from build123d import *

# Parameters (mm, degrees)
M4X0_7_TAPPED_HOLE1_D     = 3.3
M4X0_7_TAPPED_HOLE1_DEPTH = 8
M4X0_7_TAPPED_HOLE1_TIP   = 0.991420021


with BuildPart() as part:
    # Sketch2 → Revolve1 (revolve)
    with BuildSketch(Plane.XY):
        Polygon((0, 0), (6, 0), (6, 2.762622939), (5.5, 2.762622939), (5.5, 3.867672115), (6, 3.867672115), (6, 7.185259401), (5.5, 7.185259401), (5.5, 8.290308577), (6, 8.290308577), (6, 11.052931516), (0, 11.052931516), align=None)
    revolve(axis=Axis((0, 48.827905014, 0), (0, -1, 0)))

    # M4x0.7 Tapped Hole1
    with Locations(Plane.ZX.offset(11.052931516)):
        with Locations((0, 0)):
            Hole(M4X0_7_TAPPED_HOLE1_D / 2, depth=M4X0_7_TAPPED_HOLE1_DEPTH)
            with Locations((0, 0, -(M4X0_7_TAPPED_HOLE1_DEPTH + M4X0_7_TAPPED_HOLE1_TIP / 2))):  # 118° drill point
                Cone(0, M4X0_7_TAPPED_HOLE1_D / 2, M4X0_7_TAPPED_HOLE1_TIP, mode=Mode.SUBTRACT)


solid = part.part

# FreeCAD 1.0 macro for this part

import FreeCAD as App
import Part
import Sketcher
Q = App.Units.Quantity

doc = App.newDocument("Part")
body = doc.addObject("PartDesign::Body", "Body")

sketch1 = body.newObject("Sketcher::SketchObject", "Sketch")
sketch1.AttachmentSupport = (doc.getObject("XY_Plane"), [""])
sketch1.MapMode = "FlatFace"
sketch1.addGeometry(Part.LineSegment(App.Vector(0, 0, 0), App.Vector(6, 0, 0)), False)
sketch1.addGeometry(Part.LineSegment(App.Vector(6, 0, 0), App.Vector(6, 2.8, 0)), False)
sketch1.addGeometry(Part.LineSegment(App.Vector(6, 2.8, 0), App.Vector(5.5, 2.8, 0)), False)
sketch1.addGeometry(Part.LineSegment(App.Vector(5.5, 2.8, 0), App.Vector(5.5, 3.9, 0)), False)
sketch1.addGeometry(Part.LineSegment(App.Vector(5.5, 3.9, 0), App.Vector(6, 3.9, 0)), False)
sketch1.addGeometry(Part.LineSegment(App.Vector(6, 3.9, 0), App.Vector(6, 7.2, 0)), False)
sketch1.addGeometry(Part.LineSegment(App.Vector(6, 7.2, 0), App.Vector(5.5, 7.2, 0)), False)
sketch1.addGeometry(Part.LineSegment(App.Vector(5.5, 7.2, 0), App.Vector(5.5, 8.3, 0)), False)
sketch1.addGeometry(Part.LineSegment(App.Vector(5.5, 8.3, 0), App.Vector(6, 8.3, 0)), False)
sketch1.addGeometry(Part.LineSegment(App.Vector(6, 8.3, 0), App.Vector(6, 11.1, 0)), False)
sketch1.addGeometry(Part.LineSegment(App.Vector(6, 11.1, 0), App.Vector(0, 11.1, 0)), False)
sketch1.addGeometry(Part.LineSegment(App.Vector(0, 11.1, 0), App.Vector(0, 0, 0)), False)
sketch1.addConstraint(Sketcher.Constraint("Coincident", 0, 2, 1, 1))
sketch1.addConstraint(Sketcher.Constraint("Coincident", 1, 2, 2, 1))
sketch1.addConstraint(Sketcher.Constraint("Coincident", 2, 2, 3, 1))
sketch1.addConstraint(Sketcher.Constraint("Coincident", 3, 2, 4, 1))
sketch1.addConstraint(Sketcher.Constraint("Coincident", 4, 2, 5, 1))
sketch1.addConstraint(Sketcher.Constraint("Coincident", 5, 2, 6, 1))
sketch1.addConstraint(Sketcher.Constraint("Coincident", 6, 2, 7, 1))
sketch1.addConstraint(Sketcher.Constraint("Coincident", 7, 2, 8, 1))
sketch1.addConstraint(Sketcher.Constraint("Coincident", 8, 2, 9, 1))
sketch1.addConstraint(Sketcher.Constraint("Coincident", 9, 2, 10, 1))
sketch1.addConstraint(Sketcher.Constraint("Coincident", 10, 2, 11, 1))
sketch1.addConstraint(Sketcher.Constraint("Coincident", 11, 2, 0, 1))
sketch1.addConstraint(Sketcher.Constraint("Horizontal", 0))
sketch1.addConstraint(Sketcher.Constraint("Vertical", 1))
sketch1.addConstraint(Sketcher.Constraint("Horizontal", 2))
sketch1.addConstraint(Sketcher.Constraint("Vertical", 3))
sketch1.addConstraint(Sketcher.Constraint("Horizontal", 4))
sketch1.addConstraint(Sketcher.Constraint("Vertical", 5))
sketch1.addConstraint(Sketcher.Constraint("Horizontal", 6))
sketch1.addConstraint(Sketcher.Constraint("Vertical", 7))
sketch1.addConstraint(Sketcher.Constraint("Horizontal", 8))
sketch1.addConstraint(Sketcher.Constraint("Vertical", 9))
sketch1.addConstraint(Sketcher.Constraint("Horizontal", 10))
sketch1.addConstraint(Sketcher.Constraint("Vertical", 11))
sketch1.addConstraint(Sketcher.Constraint("Coincident", 11, 2, -1, 1))
sketch1.addConstraint(Sketcher.Constraint("Vertical", 1, 2, 4, 2))
sketch1.addConstraint(Sketcher.Constraint("Vertical", 3, 2, 6, 2))
sketch1.addConstraint(Sketcher.Constraint("Vertical", 5, 2, 8, 2))
sketch1.addConstraint(Sketcher.Constraint("Equal", 3, 7))
sketch1.addConstraint(Sketcher.Constraint("Equal", 1, 9))
sketch1.addConstraint(Sketcher.Constraint("DistanceX", 0, 1, 0, 2, Q("6 mm")))
sketch1.addConstraint(Sketcher.Constraint("DistanceX", 2, 2, 2, 1, Q("0.5 mm")))
sketch1.addConstraint(Sketcher.Constraint("DistanceY", 3, 1, 3, 2, Q("1.105049 mm")))
sketch1.addConstraint(Sketcher.Constraint("DistanceY", 11, 2, 11, 1, Q("11.052932 mm")))
sketch1.addConstraint(Sketcher.Constraint("DistanceY", 1, 1, 1, 2, Q("2.762623 mm")))
revolution = body.newObject("PartDesign::Revolution", "Revolution")
revolution.Profile = sketch1
revolution.ReferenceAxis = (sketch1, ["V_Axis"])
revolution.Angle = 360

sketch2 = body.newObject("Sketcher::SketchObject", "Sketch001")
sketch2.AttachmentSupport = (doc.getObject("XZ_Plane"), [""])
sketch2.MapMode = "FlatFace"
sketch2.AttachmentOffset = App.Placement(App.Vector(0, 0, -11.052932), App.Rotation())
sketch2.addGeometry(Part.Circle(App.Vector(0, 0, 0), App.Vector(0, 0, 1), 1.6), False)
sketch2.addConstraint(Sketcher.Constraint("Coincident", 0, 3, -1, 1))
sketch2.addConstraint(Sketcher.Constraint("Diameter", 0, Q("3.3 mm")))
doc.recompute()
hole = body.newObject("PartDesign::Hole", "Hole")
hole.Profile = sketch2
hole.ThreadType = "None"
hole.Diameter = 3.3
hole.DepthType = "Dimension"
hole.Depth = 8
hole.DrillPoint = "Angled"
hole.DrillPointAngle = 118
hole.Reversed = True

doc.recompute()
